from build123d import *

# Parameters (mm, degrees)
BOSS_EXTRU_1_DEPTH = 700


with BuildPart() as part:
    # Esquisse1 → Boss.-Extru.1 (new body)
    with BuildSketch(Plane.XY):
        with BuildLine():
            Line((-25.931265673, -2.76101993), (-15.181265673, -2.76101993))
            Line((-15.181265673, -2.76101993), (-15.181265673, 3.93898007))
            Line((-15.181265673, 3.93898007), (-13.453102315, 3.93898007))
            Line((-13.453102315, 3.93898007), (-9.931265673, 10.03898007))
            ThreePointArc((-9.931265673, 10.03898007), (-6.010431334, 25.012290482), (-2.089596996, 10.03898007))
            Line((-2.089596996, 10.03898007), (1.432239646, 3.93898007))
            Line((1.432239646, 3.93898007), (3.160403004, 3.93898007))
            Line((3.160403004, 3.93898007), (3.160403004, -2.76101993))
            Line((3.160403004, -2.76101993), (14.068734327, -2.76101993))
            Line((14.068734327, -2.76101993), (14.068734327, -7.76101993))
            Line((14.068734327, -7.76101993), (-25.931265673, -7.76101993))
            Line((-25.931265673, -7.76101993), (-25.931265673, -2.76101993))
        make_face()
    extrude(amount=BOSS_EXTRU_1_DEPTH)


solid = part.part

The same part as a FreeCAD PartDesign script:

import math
import FreeCAD as App
import Part
import Sketcher
Q = App.Units.Quantity

doc = App.newDocument("Part")
params = doc.addObject("Spreadsheet::Sheet", "Params")
for row, (alias, value) in enumerate([
    ("sketch1_radius", "8 mm"),
    ("sketch1_width", "40 mm"),
    ("sketch1_height", "5 mm"),
    ("sketch1_height2", "6.7 mm"),
    ("sketch1_width2", "10.75 mm"),
    ("pad1_length", "700 mm"),
], start=1):
    params.set(f"A{row}", alias)
    params.set(f"B{row}", "=" + value)
    params.setAlias(f"B{row}", alias)

body = doc.addObject("PartDesign::Body", "Body")

# Sketch on XY plane
sketch1 = doc.addObject("Sketcher::SketchObject", "Sketch")
body.addObject(sketch1)
sketch1.AttachmentSupport = (doc.XY_Plane, [""])
sketch1.MapMode = "FlatFace"
sketch1.addGeometry(Part.LineSegment(App.Vector(-15.181266, -2.76102, 0), App.Vector(-25.931266, -2.76102, 0)), False)
sketch1.addGeometry(Part.LineSegment(App.Vector(-25.931266, -2.76102, 0), App.Vector(-25.931266, -7.76102, 0)), False)
sketch1.addGeometry(Part.LineSegment(App.Vector(-25.931266, -7.76102, 0), App.Vector(14.068734, -7.76102, 0)), False)
sketch1.addGeometry(Part.LineSegment(App.Vector(14.068734, -7.76102, 0), App.Vector(14.068734, -2.76102, 0)), False)
sketch1.addGeometry(Part.LineSegment(App.Vector(14.068734, -2.76102, 0), App.Vector(3.160403, -2.76102, 0)), False)
sketch1.addGeometry(Part.LineSegment(App.Vector(3.160403, -2.76102, 0), App.Vector(3.160403, 3.93898, 0)), False)
sketch1.addGeometry(Part.LineSegment(App.Vector(3.160403, 3.93898, 0), App.Vector(1.43224, 3.93898, 0)), False)
sketch1.addGeometry(Part.LineSegment(App.Vector(1.43224, 3.93898, 0), App.Vector(-2.089597, 10.03898, 0)), False)
sketch1.addGeometry(Part.ArcOfCircle(Part.Circle(App.Vector(-6.010431, 17.01229, 0), App.Vector(0, 0, 1), 8), math.radians(-60.652563), math.radians(240.652563)), False)
sketch1.addGeometry(Part.LineSegment(App.Vector(-9.931266, 10.03898, 0), App.Vector(-13.453102, 3.93898, 0)), False)
sketch1.addGeometry(Part.LineSegment(App.Vector(-13.453102, 3.93898, 0), App.Vector(-15.181266, 3.93898, 0)), False)
sketch1.addGeometry(Part.LineSegment(App.Vector(-15.181266, 3.93898, 0), App.Vector(-15.181266, -2.76102, 0)), False)
sketch1.addConstraint(Sketcher.Constraint("Coincident", 0, 2, 1, 1))
sketch1.addConstraint(Sketcher.Constraint("Coincident", 1, 2, 2, 1))
sketch1.addConstraint(Sketcher.Constraint("Coincident", 2, 2, 3, 1))
sketch1.addConstraint(Sketcher.Constraint("Coincident", 3, 2, 4, 1))
sketch1.addConstraint(Sketcher.Constraint("Coincident", 4, 2, 5, 1))
sketch1.addConstraint(Sketcher.Constraint("Coincident", 5, 2, 6, 1))
sketch1.addConstraint(Sketcher.Constraint("Coincident", 6, 2, 7, 1))
sketch1.addConstraint(Sketcher.Constraint("Coincident", 7, 2, 8, 1))
sketch1.addConstraint(Sketcher.Constraint("Coincident", 8, 2, 9, 1))
sketch1.addConstraint(Sketcher.Constraint("Coincident", 9, 2, 10, 1))
sketch1.addConstraint(Sketcher.Constraint("Coincident", 10, 2, 11, 1))
sketch1.addConstraint(Sketcher.Constraint("Coincident", 11, 2, 0, 1))
sketch1.addConstraint(Sketcher.Constraint("Horizontal", 0))
sketch1.addConstraint(Sketcher.Constraint("Vertical", 1))
sketch1.addConstraint(Sketcher.Constraint("Horizontal", 2))
sketch1.addConstraint(Sketcher.Constraint("Vertical", 3))
sketch1.addConstraint(Sketcher.Constraint("Horizontal", 4))
sketch1.addConstraint(Sketcher.Constraint("Vertical", 5))
sketch1.addConstraint(Sketcher.Constraint("Horizontal", 6))
sketch1.addConstraint(Sketcher.Constraint("Horizontal", 10))
sketch1.addConstraint(Sketcher.Constraint("Vertical", 11))
sketch1.addConstraint(Sketcher.Constraint("Horizontal", 0, 2, 3, 2))
sketch1.addConstraint(Sketcher.Constraint("Horizontal", 7, 2, 8, 2))
sketch1.addConstraint(Sketcher.Constraint("Horizontal", 6, 2, 9, 2))
sketch1.addConstraint(Sketcher.Constraint("Equal", 6, 10))
sketch1.addConstraint(Sketcher.Constraint("Equal", 7, 9))
sketch1.addConstraint(Sketcher.Constraint("Radius", 8, Q("8 mm")))
sketch1.addConstraint(Sketcher.Constraint("DistanceX", 2, 1, 2, 2, Q("40 mm")))
sketch1.addConstraint(Sketcher.Constraint("DistanceY", 1, 2, 1, 1, Q("5 mm")))
sketch1.addConstraint(Sketcher.Constraint("Angle", 7, Q("120 deg")))
sketch1.addConstraint(Sketcher.Constraint("DistanceY", 5, 1, 5, 2, Q("6.7 mm")))
sketch1.addConstraint(Sketcher.Constraint("DistanceX", 0, 2, 0, 1, Q("10.75 mm")))
sketch1.addConstraint(Sketcher.Constraint("DistanceY", 6, 2, 7, 2, Q("6.1 mm")))
sketch1.addConstraint(Sketcher.Constraint("DistanceX", 7, 2, 5, 2, Q("5.25 mm")))
sketch1.addConstraint(Sketcher.Constraint("DistanceX", 4, 2, 4, 1, Q("10.908331 mm")))
sketch1.addConstraint(Sketcher.Constraint("DistanceX", 8, 3, -1, 1, Q("6.010431 mm")))
sketch1.addConstraint(Sketcher.Constraint("DistanceY", -1, 1, 8, 3, Q("17.01229 mm")))
sketch1.setExpression("Constraints[26]", "Params.sketch1_radius")
sketch1.setExpression("Constraints[27]", "Params.sketch1_width")
sketch1.setExpression("Constraints[28]", "Params.sketch1_height")
sketch1.setExpression("Constraints[30]", "Params.sketch1_height2")
sketch1.setExpression("Constraints[31]", "Params.sketch1_width2")
pad1 = doc.addObject("PartDesign::Pad", "Pad")
body.addObject(pad1)
pad1.Profile = sketch1
pad1.setExpression("Length", "Params.pad1_length")

doc.recompute()
